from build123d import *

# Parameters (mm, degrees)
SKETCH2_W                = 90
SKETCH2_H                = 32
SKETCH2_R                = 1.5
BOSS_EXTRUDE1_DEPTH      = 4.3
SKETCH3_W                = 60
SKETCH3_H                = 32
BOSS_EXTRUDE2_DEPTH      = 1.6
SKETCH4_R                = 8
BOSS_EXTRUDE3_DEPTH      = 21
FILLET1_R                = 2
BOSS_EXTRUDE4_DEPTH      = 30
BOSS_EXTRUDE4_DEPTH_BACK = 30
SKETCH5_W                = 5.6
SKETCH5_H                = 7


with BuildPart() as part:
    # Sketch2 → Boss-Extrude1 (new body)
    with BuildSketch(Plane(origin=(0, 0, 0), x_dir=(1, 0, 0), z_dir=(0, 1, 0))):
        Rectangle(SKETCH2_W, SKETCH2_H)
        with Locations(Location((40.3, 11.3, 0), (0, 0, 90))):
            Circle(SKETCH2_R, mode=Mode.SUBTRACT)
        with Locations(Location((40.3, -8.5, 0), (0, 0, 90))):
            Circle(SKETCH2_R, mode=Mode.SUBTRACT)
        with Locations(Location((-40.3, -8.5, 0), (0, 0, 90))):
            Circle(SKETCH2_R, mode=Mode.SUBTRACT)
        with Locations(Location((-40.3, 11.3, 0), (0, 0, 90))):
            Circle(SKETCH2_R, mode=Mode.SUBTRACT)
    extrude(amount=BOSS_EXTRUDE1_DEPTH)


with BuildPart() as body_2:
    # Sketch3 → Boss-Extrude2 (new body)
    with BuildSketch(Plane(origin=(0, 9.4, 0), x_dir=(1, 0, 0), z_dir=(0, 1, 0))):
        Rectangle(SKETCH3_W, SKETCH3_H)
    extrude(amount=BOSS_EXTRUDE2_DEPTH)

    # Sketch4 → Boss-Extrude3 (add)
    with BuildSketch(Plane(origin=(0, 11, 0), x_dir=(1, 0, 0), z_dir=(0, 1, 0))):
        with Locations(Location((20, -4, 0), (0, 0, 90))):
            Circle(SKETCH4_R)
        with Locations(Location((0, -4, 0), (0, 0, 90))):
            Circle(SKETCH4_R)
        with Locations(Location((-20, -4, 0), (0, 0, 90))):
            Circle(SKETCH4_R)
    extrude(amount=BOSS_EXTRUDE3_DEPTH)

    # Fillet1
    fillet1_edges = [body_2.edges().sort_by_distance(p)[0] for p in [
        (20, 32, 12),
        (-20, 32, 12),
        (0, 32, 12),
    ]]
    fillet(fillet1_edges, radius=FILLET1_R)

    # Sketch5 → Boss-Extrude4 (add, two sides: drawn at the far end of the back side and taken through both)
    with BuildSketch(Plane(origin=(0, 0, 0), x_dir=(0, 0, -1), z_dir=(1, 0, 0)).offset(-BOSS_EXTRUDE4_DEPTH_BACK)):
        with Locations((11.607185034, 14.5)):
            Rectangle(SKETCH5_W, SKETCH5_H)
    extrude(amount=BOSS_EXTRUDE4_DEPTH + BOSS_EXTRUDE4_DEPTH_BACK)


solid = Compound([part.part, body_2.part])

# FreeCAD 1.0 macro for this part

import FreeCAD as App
import Part
import Sketcher
from FreeCAD import Vector
Q = App.Units.Quantity


def edges_at(feature, points):
    """Names of the edges that pass closest to the given points."""
    edges = feature.Shape.Edges
    near = lambda p: min(range(len(edges)), key=lambda i: edges[i].distToShape(Part.Vertex(*p))[0])
    return sorted({f"Edge{near(p) + 1}" for p in points})

doc = App.newDocument("Part")
body = doc.addObject("PartDesign::Body", "Body")

sketch1 = body.newObject("Sketcher::SketchObject", "Sketch")
sketch1.AttachmentSupport = (doc.getObject("XZ_Plane"), [""])
sketch1.MapMode = "FlatFace"
sketch1.addGeometry(Part.LineSegment(Vector(-45, -16, 0), Vector(-45, 16, 0)), False)
sketch1.addGeometry(Part.LineSegment(Vector(-45, 16, 0), Vector(45, 16, 0)), False)
sketch1.addGeometry(Part.LineSegment(Vector(45, 16, 0), Vector(45, -16, 0)), False)
sketch1.addGeometry(Part.LineSegment(Vector(45, -16, 0), Vector(-45, -16, 0)), False)
sketch1.addGeometry(Part.Circle(Vector(-40.3, 8.5, 0), Vector(0, 0, 1), 1.5), False)
sketch1.addGeometry(Part.Circle(Vector(40.3, 8.5, 0), Vector(0, 0, 1), 1.5), False)
sketch1.addGeometry(Part.Circle(Vector(-40.3, -11.3, 0), Vector(0, 0, 1), 1.5), False)
sketch1.addGeometry(Part.Circle(Vector(40.3, -11.3, 0), Vector(0, 0, 1), 1.5), False)
sketch1.addConstraint(Sketcher.Constraint("Coincident", 0, 2, 1, 1))
sketch1.addConstraint(Sketcher.Constraint("Coincident", 1, 2, 2, 1))
sketch1.addConstraint(Sketcher.Constraint("Coincident", 2, 2, 3, 1))
sketch1.addConstraint(Sketcher.Constraint("Coincident", 3, 2, 0, 1))
sketch1.addConstraint(Sketcher.Constraint("Vertical", 0))
sketch1.addConstraint(Sketcher.Constraint("Horizontal", 1))
sketch1.addConstraint(Sketcher.Constraint("Vertical", 2))
sketch1.addConstraint(Sketcher.Constraint("Horizontal", 3))
sketch1.addConstraint(Sketcher.Constraint("Equal", 4, 5))
sketch1.addConstraint(Sketcher.Constraint("Equal", 5, 6))
sketch1.addConstraint(Sketcher.Constraint("Equal", 6, 7))
sketch1.addConstraint(Sketcher.Constraint("Symmetric", 0, 2, 2, 2, -1, 1))
sketch1.addConstraint(Sketcher.Constraint("Symmetric", 4, 3, 5, 3, -2))
sketch1.addConstraint(Sketcher.Constraint("Symmetric", 6, 3, 7, 3, -2))
sketch1.addConstraint(Sketcher.Constraint("Vertical", 4, 3, 6, 3))
sketch1.addConstraint(Sketcher.Constraint("Diameter", 4, Q("3 mm")))
sketch1.addConstraint(Sketcher.Constraint("DistanceX", 1, 1, 1, 2, Q("90 mm")))
sketch1.addConstraint(Sketcher.Constraint("DistanceY", 0, 1, 0, 2, Q("32 mm")))
sketch1.addConstraint(Sketcher.Constraint("DistanceX", 4, 3, -1, 1, Q("40.3 mm")))
sketch1.addConstraint(Sketcher.Constraint("DistanceY", -1, 1, 4, 3, Q("8.5 mm")))
sketch1.addConstraint(Sketcher.Constraint("DistanceY", 6, 3, -1, 1, Q("11.3 mm")))
pad1 = body.newObject("PartDesign::Pad", "Pad")
pad1.Profile = sketch1
pad1.Length = 4.3
pad1.Reversed = True
body2 = doc.addObject("PartDesign::Body", "Body001")

sketch2 = body2.newObject("Sketcher::SketchObject", "Sketch001")
sketch2.AttachmentSupport = (doc.getObject("XZ_Plane001"), [""])
sketch2.MapMode = "FlatFace"
sketch2.AttachmentOffset = App.Placement(Vector(0, 0, -9.4), App.Rotation())
sketch2.addGeometry(Part.LineSegment(Vector(-30, -16, 0), Vector(-30, 16, 0)), False)
sketch2.addGeometry(Part.LineSegment(Vector(-30, 16, 0), Vector(30, 16, 0)), False)
sketch2.addGeometry(Part.LineSegment(Vector(30, 16, 0), Vector(30, -16, 0)), False)
sketch2.addGeometry(Part.LineSegment(Vector(30, -16, 0), Vector(-30, -16, 0)), False)
sketch2.addConstraint(Sketcher.Constraint("Coincident", 0, 2, 1, 1))
sketch2.addConstraint(Sketcher.Constraint("Coincident", 1, 2, 2, 1))
sketch2.addConstraint(Sketcher.Constraint("Coincident", 2, 2, 3, 1))
sketch2.addConstraint(Sketcher.Constraint("Coincident", 3, 2, 0, 1))
sketch2.addConstraint(Sketcher.Constraint("Vertical", 0))
sketch2.addConstraint(Sketcher.Constraint("Horizontal", 1))
sketch2.addConstraint(Sketcher.Constraint("Vertical", 2))
sketch2.addConstraint(Sketcher.Constraint("Horizontal", 3))
sketch2.addConstraint(Sketcher.Constraint("Symmetric", 0, 2, 2, 2, -1, 1))
sketch2.addConstraint(Sketcher.Constraint("DistanceX", 1, 1, 1, 2, Q("60 mm")))
sketch2.addConstraint(Sketcher.Constraint("DistanceY", 0, 1, 0, 2, Q("32 mm")))
pad2 = body2.newObject("PartDesign::Pad", "Pad001")
pad2.Profile = sketch2
pad2.Length = 1.6
pad2.Reversed = True

sketch3 = body2.newObject("Sketcher::SketchObject", "Sketch002")
sketch3.AttachmentSupport = (doc.getObject("XZ_Plane001"), [""])
sketch3.MapMode = "FlatFace"
sketch3.AttachmentOffset = App.Placement(Vector(0, 0, -11), App.Rotation())
sketch3.addGeometry(Part.Circle(Vector(20, 4, 0), Vector(0, 0, 1), 8), False)
sketch3.addGeometry(Part.Circle(Vector(0, 4, 0), Vector(0, 0, 1), 8), False)
sketch3.addGeometry(Part.Circle(Vector(-20, 4, 0), Vector(0, 0, 1), 8), False)
sketch3.addConstraint(Sketcher.Constraint("Equal", 0, 1))
sketch3.addConstraint(Sketcher.Constraint("Equal", 1, 2))
sketch3.addConstraint(Sketcher.Constraint("Symmetric", 0, 3, 2, 3, -2))
sketch3.addConstraint(Sketcher.Constraint("PointOnObject", 1, 3, -2))
sketch3.addConstraint(Sketcher.Constraint("Horizontal", 0, 3, 1, 3))
sketch3.addConstraint(Sketcher.Constraint("Diameter", 0, Q("16 mm")))
sketch3.addConstraint(Sketcher.Constraint("DistanceX", -1, 1, 0, 3, Q("20 mm")))
sketch3.addConstraint(Sketcher.Constraint("DistanceY", -1, 1, 0, 3, Q("4 mm")))
pad3 = body2.newObject("PartDesign::Pad", "Pad002")
pad3.Profile = sketch3
pad3.Length = 21
pad3.Reversed = True
doc.recompute()

fillet = body2.newObject("PartDesign::Fillet", "Fillet")
fillet.Base = (pad3, edges_at(pad3, [(20, 32, 12), (-20, 32, 12), (0, 32, 12)]))
fillet.Radius = 2

sketch4 = body2.newObject("Sketcher::SketchObject", "Sketch003")
sketch4.AttachmentSupport = (doc.getObject("YZ_Plane001"), [""])
sketch4.MapMode = "FlatFace"
sketch4.addGeometry(Part.LineSegment(Vector(18, -9, 0), Vector(11, -9, 0)), False)
sketch4.addGeometry(Part.LineSegment(Vector(11, -9, 0), Vector(11, -14, 0)), False)
sketch4.addGeometry(Part.LineSegment(Vector(11, -14, 0), Vector(18, -14, 0)), False)
sketch4.addGeometry(Part.LineSegment(Vector(18, -14, 0), Vector(18, -9, 0)), False)
sketch4.addConstraint(Sketcher.Constraint("Coincident", 0, 2, 1, 1))
sketch4.addConstraint(Sketcher.Constraint("Coincident", 1, 2, 2, 1))
sketch4.addConstraint(Sketcher.Constraint("Coincident", 2, 2, 3, 1))
sketch4.addConstraint(Sketcher.Constraint("Coincident", 3, 2, 0, 1))
sketch4.addConstraint(Sketcher.Constraint("Horizontal", 0))
sketch4.addConstraint(Sketcher.Constraint("Vertical", 1))
sketch4.addConstraint(Sketcher.Constraint("Horizontal", 2))
sketch4.addConstraint(Sketcher.Constraint("Vertical", 3))
sketch4.addConstraint(Sketcher.Constraint("DistanceX", 0, 2, 0, 1, Q("7 mm")))
sketch4.addConstraint(Sketcher.Constraint("DistanceY", 1, 2, 1, 1, Q("5.6 mm")))
sketch4.addConstraint(Sketcher.Constraint("DistanceX", -1, 1, 0, 2, Q("11 mm")))
sketch4.addConstraint(Sketcher.Constraint("DistanceY", 0, 2, -1, 1, Q("8.807185 mm")))
pad4 = body2.newObject("PartDesign::Pad", "Pad003")
pad4.Profile = sketch4
pad4.Type = "TwoLengths"
pad4.Length = 30
pad4.Length2 = 30

doc.recompute()
